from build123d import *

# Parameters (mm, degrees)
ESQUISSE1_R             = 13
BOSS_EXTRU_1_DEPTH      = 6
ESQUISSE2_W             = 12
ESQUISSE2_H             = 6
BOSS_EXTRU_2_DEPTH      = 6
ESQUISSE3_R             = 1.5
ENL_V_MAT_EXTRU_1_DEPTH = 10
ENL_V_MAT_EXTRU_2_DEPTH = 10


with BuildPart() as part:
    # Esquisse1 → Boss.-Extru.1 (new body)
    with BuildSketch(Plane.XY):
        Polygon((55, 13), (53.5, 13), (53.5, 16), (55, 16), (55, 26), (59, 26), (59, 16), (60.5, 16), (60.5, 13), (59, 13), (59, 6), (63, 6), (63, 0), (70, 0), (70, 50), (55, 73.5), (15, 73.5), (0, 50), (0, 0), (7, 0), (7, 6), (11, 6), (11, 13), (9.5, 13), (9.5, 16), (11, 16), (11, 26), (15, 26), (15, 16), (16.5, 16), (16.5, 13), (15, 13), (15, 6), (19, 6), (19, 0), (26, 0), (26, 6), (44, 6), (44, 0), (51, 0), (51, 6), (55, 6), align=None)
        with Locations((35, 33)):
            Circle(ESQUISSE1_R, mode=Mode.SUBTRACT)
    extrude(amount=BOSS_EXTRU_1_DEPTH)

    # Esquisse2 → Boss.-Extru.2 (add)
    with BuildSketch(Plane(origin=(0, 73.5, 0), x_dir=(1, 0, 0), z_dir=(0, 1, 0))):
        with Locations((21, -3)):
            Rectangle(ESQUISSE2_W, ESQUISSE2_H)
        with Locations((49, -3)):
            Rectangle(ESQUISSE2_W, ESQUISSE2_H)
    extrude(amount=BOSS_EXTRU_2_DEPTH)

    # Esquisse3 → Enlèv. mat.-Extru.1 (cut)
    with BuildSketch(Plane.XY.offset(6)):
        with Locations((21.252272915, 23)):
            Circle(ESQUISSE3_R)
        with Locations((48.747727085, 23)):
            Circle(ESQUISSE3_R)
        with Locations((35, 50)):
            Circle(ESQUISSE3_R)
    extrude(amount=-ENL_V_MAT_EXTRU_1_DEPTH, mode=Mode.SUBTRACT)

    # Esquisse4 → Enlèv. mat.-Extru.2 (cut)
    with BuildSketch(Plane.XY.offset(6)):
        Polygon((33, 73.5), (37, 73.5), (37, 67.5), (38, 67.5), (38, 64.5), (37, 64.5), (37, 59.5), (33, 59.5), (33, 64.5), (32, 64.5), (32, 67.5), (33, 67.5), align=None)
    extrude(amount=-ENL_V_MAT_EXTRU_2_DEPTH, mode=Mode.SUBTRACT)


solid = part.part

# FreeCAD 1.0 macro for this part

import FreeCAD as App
import Part
import Sketcher
from FreeCAD import Vector

doc = App.newDocument("Part")
body = doc.addObject("PartDesign::Body", "Body")

# Sketch on XY plane
sketch1 = body.newObject("Sketcher::SketchObject", "Sketch")
sketch1.AttachmentSupport = (doc.getObject("XY_Plane"), [""])
sketch1.MapMode = "FlatFace"
sketch1.addGeometry([
    Part.LineSegment(Vector(55, 13, 0), Vector(53.5, 13, 0)),  # 0
    Part.LineSegment(Vector(53.5, 13, 0), Vector(53.5, 16, 0)),  # 1
    Part.LineSegment(Vector(53.5, 16, 0), Vector(55, 16, 0)),  # 2
    Part.LineSegment(Vector(55, 16, 0), Vector(55, 26, 0)),  # 3
    Part.LineSegment(Vector(55, 26, 0), Vector(59, 26, 0)),  # 4
    Part.LineSegment(Vector(59, 26, 0), Vector(59, 16, 0)),  # 5
    Part.LineSegment(Vector(59, 16, 0), Vector(60.5, 16, 0)),  # 6
    Part.LineSegment(Vector(60.5, 16, 0), Vector(60.5, 13, 0)),  # 7
    Part.LineSegment(Vector(60.5, 13, 0), Vector(59, 13, 0)),  # 8
    Part.LineSegment(Vector(59, 13, 0), Vector(59, 6, 0)),  # 9
    Part.LineSegment(Vector(59, 6, 0), Vector(63, 6, 0)),  # 10
    Part.LineSegment(Vector(63, 6, 0), Vector(63, 0, 0)),  # 11
    Part.LineSegment(Vector(63, 0, 0), Vector(70, 0, 0)),  # 12
    Part.LineSegment(Vector(70, 0, 0), Vector(70, 50, 0)),  # 13
    Part.LineSegment(Vector(70, 50, 0), Vector(55, 73.5, 0)),  # 14
    Part.LineSegment(Vector(55, 73.5, 0), Vector(15, 73.5, 0)),  # 15
    Part.LineSegment(Vector(15, 73.5, 0), Vector(0, 50, 0)),  # 16
    Part.LineSegment(Vector(0, 50, 0), Vector(0, 0, 0)),  # 17
    Part.LineSegment(Vector(0, 0, 0), Vector(7, 0, 0)),  # 18
    Part.LineSegment(Vector(7, 0, 0), Vector(7, 6, 0)),  # 19
    Part.LineSegment(Vector(7, 6, 0), Vector(11, 6, 0)),  # 20
    Part.LineSegment(Vector(11, 6, 0), Vector(11, 13, 0)),  # 21
    Part.LineSegment(Vector(11, 13, 0), Vector(9.5, 13, 0)),  # 22
    Part.LineSegment(Vector(9.5, 13, 0), Vector(9.5, 16, 0)),  # 23
    Part.LineSegment(Vector(9.5, 16, 0), Vector(11, 16, 0)),  # 24
    Part.LineSegment(Vector(11, 16, 0), Vector(11, 26, 0)),  # 25
    Part.LineSegment(Vector(11, 26, 0), Vector(15, 26, 0)),  # 26
    Part.LineSegment(Vector(15, 26, 0), Vector(15, 16, 0)),  # 27
    Part.LineSegment(Vector(15, 16, 0), Vector(16.5, 16, 0)),  # 28
    Part.LineSegment(Vector(16.5, 16, 0), Vector(16.5, 13, 0)),  # 29
    Part.LineSegment(Vector(16.5, 13, 0), Vector(15, 13, 0)),  # 30
    Part.LineSegment(Vector(15, 13, 0), Vector(15, 6, 0)),  # 31
    Part.LineSegment(Vector(15, 6, 0), Vector(19, 6, 0)),  # 32
    Part.LineSegment(Vector(19, 6, 0), Vector(19, 0, 0)),  # 33
    Part.LineSegment(Vector(19, 0, 0), Vector(26, 0, 0)),  # 34
    Part.LineSegment(Vector(26, 0, 0), Vector(26, 6, 0)),  # 35
    Part.LineSegment(Vector(26, 6, 0), Vector(44, 6, 0)),  # 36
    Part.LineSegment(Vector(44, 6, 0), Vector(44, 0, 0)),  # 37
    Part.LineSegment(Vector(44, 0, 0), Vector(51, 0, 0)),  # 38
    Part.LineSegment(Vector(51, 0, 0), Vector(51, 6, 0)),  # 39
    Part.LineSegment(Vector(51, 6, 0), Vector(55, 6, 0)),  # 40
    Part.LineSegment(Vector(55, 6, 0), Vector(55, 13, 0)),  # 41
    Part.Circle(Vector(35, 33, 0), Vector(0, 0, 1), 13),  # 42
], False)
sketch1.addConstraint([
    Sketcher.Constraint("Coincident", 0, 2, 1, 1),
    Sketcher.Constraint("Coincident", 1, 2, 2, 1),
    Sketcher.Constraint("Coincident", 2, 2, 3, 1),
    Sketcher.Constraint("Coincident", 3, 2, 4, 1),
    Sketcher.Constraint("Coincident", 4, 2, 5, 1),
    Sketcher.Constraint("Coincident", 5, 2, 6, 1),
    Sketcher.Constraint("Coincident", 6, 2, 7, 1),
    Sketcher.Constraint("Coincident", 7, 2, 8, 1),
    Sketcher.Constraint("Coincident", 8, 2, 9, 1),
    Sketcher.Constraint("Coincident", 9, 2, 10, 1),
    Sketcher.Constraint("Coincident", 10, 2, 11, 1),
    Sketcher.Constraint("Coincident", 11, 2, 12, 1),
    Sketcher.Constraint("Coincident", 12, 2, 13, 1),
    Sketcher.Constraint("Coincident", 13, 2, 14, 1),
    Sketcher.Constraint("Coincident", 14, 2, 15, 1),
    Sketcher.Constraint("Coincident", 15, 2, 16, 1),
    Sketcher.Constraint("Coincident", 16, 2, 17, 1),
    Sketcher.Constraint("Coincident", 17, 2, 18, 1),
    Sketcher.Constraint("Coincident", 18, 2, 19, 1),
    Sketcher.Constraint("Coincident", 19, 2, 20, 1),
    Sketcher.Constraint("Coincident", 20, 2, 21, 1),
    Sketcher.Constraint("Coincident", 21, 2, 22, 1),
    Sketcher.Constraint("Coincident", 22, 2, 23, 1),
    Sketcher.Constraint("Coincident", 23, 2, 24, 1),
    Sketcher.Constraint("Coincident", 24, 2, 25, 1),
    Sketcher.Constraint("Coincident", 25, 2, 26, 1),
    Sketcher.Constraint("Coincident", 26, 2, 27, 1),
    Sketcher.Constraint("Coincident", 27, 2, 28, 1),
    Sketcher.Constraint("Coincident", 28, 2, 29, 1),
    Sketcher.Constraint("Coincident", 29, 2, 30, 1),
    Sketcher.Constraint("Coincident", 30, 2, 31, 1),
    Sketcher.Constraint("Coincident", 31, 2, 32, 1),
    Sketcher.Constraint("Coincident", 32, 2, 33, 1),
    Sketcher.Constraint("Coincident", 33, 2, 34, 1),
    Sketcher.Constraint("Coincident", 34, 2, 35, 1),
    Sketcher.Constraint("Coincident", 35, 2, 36, 1),
    Sketcher.Constraint("Coincident", 36, 2, 37, 1),
    Sketcher.Constraint("Coincident", 37, 2, 38, 1),
    Sketcher.Constraint("Coincident", 38, 2, 39, 1),
    Sketcher.Constraint("Coincident", 39, 2, 40, 1),
    Sketcher.Constraint("Coincident", 40, 2, 41, 1),
    Sketcher.Constraint("Coincident", 41, 2, 0, 1),
    Sketcher.Constraint("Horizontal", 0),
    Sketcher.Constraint("Vertical", 1),
    Sketcher.Constraint("Horizontal", 2),
    Sketcher.Constraint("Vertical", 3),
    Sketcher.Constraint("Horizontal", 4),
    Sketcher.Constraint("Vertical", 5),
    Sketcher.Constraint("Horizontal", 6),
    Sketcher.Constraint("Vertical", 7),
    Sketcher.Constraint("Horizontal", 8),
    Sketcher.Constraint("Vertical", 9),
    Sketcher.Constraint("Horizontal", 10),
    Sketcher.Constraint("Vertical", 11),
    Sketcher.Constraint("Horizontal", 12),
    Sketcher.Constraint("Vertical", 13),
    Sketcher.Constraint("Horizontal", 15),
    Sketcher.Constraint("Vertical", 17),
    Sketcher.Constraint("Horizontal", 18),
    Sketcher.Constraint("Vertical", 19),
    Sketcher.Constraint("Horizontal", 20),
    Sketcher.Constraint("Vertical", 21),
    Sketcher.Constraint("Horizontal", 22),
    Sketcher.Constraint("Vertical", 23),
    Sketcher.Constraint("Horizontal", 24),
    Sketcher.Constraint("Vertical", 25),
    Sketcher.Constraint("Horizontal", 26),
    Sketcher.Constraint("Vertical", 27),
    Sketcher.Constraint("Horizontal", 28),
    Sketcher.Constraint("Vertical", 29),
    Sketcher.Constraint("Horizontal", 30),
    Sketcher.Constraint("Vertical", 31),
    Sketcher.Constraint("Horizontal", 32),
    Sketcher.Constraint("Vertical", 33),
    Sketcher.Constraint("Horizontal", 34),
    Sketcher.Constraint("Vertical", 35),
    Sketcher.Constraint("Horizontal", 36),
    Sketcher.Constraint("Vertical", 37),
    Sketcher.Constraint("Horizontal", 38),
    Sketcher.Constraint("Vertical", 39),
    Sketcher.Constraint("Horizontal", 40),
    Sketcher.Constraint("Vertical", 41),
    Sketcher.Constraint("Coincident", 17, 2, -1, 1),
    Sketcher.Constraint("PointOnObject", 11, 2, -1),
    Sketcher.Constraint("PointOnObject", 33, 2, -1),
    Sketcher.Constraint("PointOnObject", 37, 2, -1),
    Sketcher.Constraint("Horizontal", 2, 2, 5, 2),
    Sketcher.Constraint("Horizontal", 0, 2, 7, 2),
    Sketcher.Constraint("Horizontal", 13, 2, 16, 2),
    Sketcher.Constraint("Horizontal", 10, 2, 19, 2),
    Sketcher.Constraint("Horizontal", 8, 2, 21, 2),
    Sketcher.Constraint("Horizontal", 6, 2, 23, 2),
    Sketcher.Constraint("Horizontal", 4, 2, 25, 2),
    Sketcher.Constraint("Horizontal", 24, 2, 27, 2),
    Sketcher.Constraint("Horizontal", 22, 2, 29, 2),
    Sketcher.Constraint("Horizontal", 20, 2, 31, 2),
    Sketcher.Constraint("Horizontal", 32, 2, 35, 2),
    Sketcher.Constraint("Horizontal", 36, 2, 39, 2),
    Sketcher.Constraint("Vertical", 5, 2, 8, 2),
    Sketcher.Constraint("Vertical", 3, 2, 14, 2),
    Sketcher.Constraint("Vertical", 21, 2, 24, 2),
    Sketcher.Constraint("Vertical", 15, 2, 26, 2),
    Sketcher.Constraint("Vertical", 27, 2, 30, 2),
    Sketcher.Constraint("Vertical", 14, 2, 40, 2),
    Sketcher.Constraint("Equal", 2, 6),
    Sketcher.Constraint("Equal", 4, 10),
    Sketcher.Constraint("Equal", 12, 18),
    Sketcher.Constraint("Equal", 10, 20),
    Sketcher.Constraint("Equal", 8, 22),
    Sketcher.Constraint("Equal", 20, 26),
    Sketcher.Constraint("Equal", 24, 28),
    Sketcher.Constraint("Equal", 26, 32),
    Sketcher.Constraint("Equal", 18, 34),
    Sketcher.Constraint("Equal", 34, 38),
    Sketcher.Constraint("Equal", 32, 40),
    Sketcher.Constraint("Equal", 38, 9),
    Sketcher.Constraint("Diameter", 42, 26.0),
    Sketcher.Constraint("DistanceX", 4, 1, 4, 2, 4.0),
    Sketcher.Constraint("DistanceX", 12, 1, 12, 2, 7.0),
    Sketcher.Constraint("DistanceX", 15, 2, 15, 1, 40.0),
    Sketcher.Constraint("DistanceY", 1, 1, 1, 2, 3.0),
    Sketcher.Constraint("DistanceY", 3, 1, 3, 2, 10.0),
    Sketcher.Constraint("DistanceY", 11, 2, 11, 1, 6.0),
    Sketcher.Constraint("DistanceY", 13, 1, 13, 2, 50.0),
    Sketcher.Constraint("DistanceX", 0, 2, 0, 1, 1.5),
    Sketcher.Constraint("DistanceX", -1, 1, 42, 3, 35.0),
    Sketcher.Constraint("DistanceY", -1, 1, 42, 3, 33.0),
    Sketcher.Constraint("DistanceY", -1, 1, 14, 2, 73.5),
])
pad1 = body.newObject("PartDesign::Pad", "Pad")
pad1.Profile = sketch1
pad1.Length = 6

# Sketch on XZ plane
sketch2 = body.newObject("Sketcher::SketchObject", "Sketch001")
sketch2.AttachmentSupport = (doc.getObject("XZ_Plane"), [""])
sketch2.MapMode = "FlatFace"
sketch2.AttachmentOffset = App.Placement(Vector(0, 0, -73.5), App.Rotation())
sketch2.addGeometry([
    Part.LineSegment(Vector(15, 0, 0), Vector(15, 6, 0)),  # 0
    Part.LineSegment(Vector(15, 6, 0), Vector(27, 6, 0)),  # 1
    Part.LineSegment(Vector(27, 6, 0), Vector(27, 0, 0)),  # 2
    Part.LineSegment(Vector(27, 0, 0), Vector(15, 0, 0)),  # 3
    Part.LineSegment(Vector(43, 0, 0), Vector(43, 6, 0)),  # 4
    Part.LineSegment(Vector(43, 6, 0), Vector(55, 6, 0)),  # 5
    Part.LineSegment(Vector(55, 6, 0), Vector(55, 0, 0)),  # 6
    Part.LineSegment(Vector(55, 0, 0), Vector(43, 0, 0)),  # 7
], False)
sketch2.addConstraint([
    Sketcher.Constraint("Coincident", 0, 2, 1, 1),
    Sketcher.Constraint("Coincident", 1, 2, 2, 1),
    Sketcher.Constraint("Coincident", 2, 2, 3, 1),
    Sketcher.Constraint("Coincident", 3, 2, 0, 1),
    Sketcher.Constraint("Coincident", 4, 2, 5, 1),
    Sketcher.Constraint("Coincident", 5, 2, 6, 1),
    Sketcher.Constraint("Coincident", 6, 2, 7, 1),
    Sketcher.Constraint("Coincident", 7, 2, 4, 1),
    Sketcher.Constraint("Vertical", 0),
    Sketcher.Constraint("Horizontal", 1),
    Sketcher.Constraint("Vertical", 2),
    Sketcher.Constraint("Horizontal", 3),
    Sketcher.Constraint("Vertical", 4),
    Sketcher.Constraint("Horizontal", 5),
    Sketcher.Constraint("Vertical", 6),
    Sketcher.Constraint("Horizontal", 7),
    Sketcher.Constraint("PointOnObject", 2, 2, -1),
    Sketcher.Constraint("PointOnObject", 6, 2, -1),
    Sketcher.Constraint("Horizontal", 1, 2, 4, 2),
    Sketcher.Constraint("Equal", 3, 5),
    Sketcher.Constraint("DistanceX", 1, 1, 1, 2, 12.0),
    Sketcher.Constraint("DistanceY", 0, 1, 0, 2, 6.0),
    Sketcher.Constraint("DistanceX", -1, 1, 0, 2, 15.0),
    Sketcher.Constraint("DistanceX", -1, 1, 4, 2, 43.0),
])
pad2 = body.newObject("PartDesign::Pad", "Pad001")
pad2.Profile = sketch2
pad2.Length = 6
pad2.Reversed = True

# Sketch on XY plane
sketch3 = body.newObject("Sketcher::SketchObject", "Sketch002")
sketch3.AttachmentSupport = (doc.getObject("XY_Plane"), [""])
sketch3.MapMode = "FlatFace"
sketch3.AttachmentOffset = App.Placement(Vector(0, 0, 6), App.Rotation())
sketch3.addGeometry([
    Part.Circle(Vector(21.3, 23, 0), Vector(0, 0, 1), 1.5),
    Part.Circle(Vector(48.7, 23, 0), Vector(0, 0, 1), 1.5),
    Part.Circle(Vector(35, 50, 0), Vector(0, 0, 1), 1.5),
], False)
sketch3.addConstraint([
    Sketcher.Constraint("Equal", 0, 1),
    Sketcher.Constraint("Equal", 1, 2),
    Sketcher.Constraint("Horizontal", 0, 3, 1, 3),
    Sketcher.Constraint("Diameter", 0, 3.0),
    Sketcher.Constraint("DistanceY", -1, 1, 0, 3, 23.0),
    Sketcher.Constraint("DistanceX", -1, 1, 2, 3, 35.0),
    Sketcher.Constraint("DistanceY", -1, 1, 2, 3, 50.0),
    Sketcher.Constraint("DistanceX", -1, 1, 0, 3, 21.252273),
    Sketcher.Constraint("DistanceX", -1, 1, 1, 3, 48.747727),
])
pocket1 = body.newObject("PartDesign::Pocket", "Pocket")
pocket1.Profile = sketch3
pocket1.Length = 10

# Sketch on XY plane
sketch4 = body.newObject("Sketcher::SketchObject", "Sketch003")
sketch4.AttachmentSupport = (doc.getObject("XY_Plane"), [""])
sketch4.MapMode = "FlatFace"
sketch4.AttachmentOffset = App.Placement(Vector(0, 0, 6), App.Rotation())
sketch4.addGeometry([
    Part.LineSegment(Vector(37, 73.5, 0), Vector(33, 73.5, 0)),  # 0
    Part.LineSegment(Vector(33, 73.5, 0), Vector(33, 67.5, 0)),  # 1
    Part.LineSegment(Vector(33, 67.5, 0), Vector(32, 67.5, 0)),  # 2
    Part.LineSegment(Vector(32, 67.5, 0), Vector(32, 64.5, 0)),  # 3
    Part.LineSegment(Vector(32, 64.5, 0), Vector(33, 64.5, 0)),  # 4
    Part.LineSegment(Vector(33, 64.5, 0), Vector(33, 59.5, 0)),  # 5
    Part.LineSegment(Vector(33, 59.5, 0), Vector(37, 59.5, 0)),  # 6
    Part.LineSegment(Vector(37, 59.5, 0), Vector(37, 64.5, 0)),  # 7
    Part.LineSegment(Vector(37, 64.5, 0), Vector(38, 64.5, 0)),  # 8
    Part.LineSegment(Vector(38, 64.5, 0), Vector(38, 67.5, 0)),  # 9
    Part.LineSegment(Vector(38, 67.5, 0), Vector(37, 67.5, 0)),  # 10
    Part.LineSegment(Vector(37, 67.5, 0), Vector(37, 73.5, 0)),  # 11
], False)
sketch4.addConstraint([
    Sketcher.Constraint("Coincident", 0, 2, 1, 1),
    Sketcher.Constraint("Coincident", 1, 2, 2, 1),
    Sketcher.Constraint("Coincident", 2, 2, 3, 1),
    Sketcher.Constraint("Coincident", 3, 2, 4, 1),
    Sketcher.Constraint("Coincident", 4, 2, 5, 1),
    Sketcher.Constraint("Coincident", 5, 2, 6, 1),
    Sketcher.Constraint("Coincident", 6, 2, 7, 1),
    Sketcher.Constraint("Coincident", 7, 2, 8, 1),
    Sketcher.Constraint("Coincident", 8, 2, 9, 1),
    Sketcher.Constraint("Coincident", 9, 2, 10, 1),
    Sketcher.Constraint("Coincident", 10, 2, 11, 1),
    Sketcher.Constraint("Coincident", 11, 2, 0, 1),
    Sketcher.Constraint("Horizontal", 0),
    Sketcher.Constraint("Vertical", 1),
    Sketcher.Constraint("Horizontal", 2),
    Sketcher.Constraint("Vertical", 3),
    Sketcher.Constraint("Horizontal", 4),
    Sketcher.Constraint("Vertical", 5),
    Sketcher.Constraint("Horizontal", 6),
    Sketcher.Constraint("Vertical", 7),
    Sketcher.Constraint("Horizontal", 8),
    Sketcher.Constraint("Vertical", 9),
    Sketcher.Constraint("Horizontal", 10),
    Sketcher.Constraint("Vertical", 11),
    Sketcher.Constraint("Horizontal", 4, 2, 7, 2),
    Sketcher.Constraint("Horizontal", 2, 2, 9, 2),
    Sketcher.Constraint("Vertical", 1, 2, 4, 2),
    Sketcher.Constraint("Vertical", 7, 2, 10, 2),
    Sketcher.Constraint("Equal", 4, 8),
    Sketcher.Constraint("DistanceX", 0, 2, 0, 1, 4.0),
    Sketcher.Constraint("DistanceX", 2, 2, 2, 1, 1.0),
    Sketcher.Constraint("DistanceY", 1, 2, 1, 1, 6.0),
    Sketcher.Constraint("DistanceY", 3, 2, 3, 1, 3.0),
    Sketcher.Constraint("DistanceY", 5, 2, 5, 1, 5.0),
    Sketcher.Constraint("DistanceX", -1, 1, 0, 2, 33.0),
    Sketcher.Constraint("DistanceY", -1, 1, 0, 2, 73.5),
])
pocket2 = body.newObject("PartDesign::Pocket", "Pocket001")
pocket2.Profile = sketch4
pocket2.Length = 10

doc.recompute()
